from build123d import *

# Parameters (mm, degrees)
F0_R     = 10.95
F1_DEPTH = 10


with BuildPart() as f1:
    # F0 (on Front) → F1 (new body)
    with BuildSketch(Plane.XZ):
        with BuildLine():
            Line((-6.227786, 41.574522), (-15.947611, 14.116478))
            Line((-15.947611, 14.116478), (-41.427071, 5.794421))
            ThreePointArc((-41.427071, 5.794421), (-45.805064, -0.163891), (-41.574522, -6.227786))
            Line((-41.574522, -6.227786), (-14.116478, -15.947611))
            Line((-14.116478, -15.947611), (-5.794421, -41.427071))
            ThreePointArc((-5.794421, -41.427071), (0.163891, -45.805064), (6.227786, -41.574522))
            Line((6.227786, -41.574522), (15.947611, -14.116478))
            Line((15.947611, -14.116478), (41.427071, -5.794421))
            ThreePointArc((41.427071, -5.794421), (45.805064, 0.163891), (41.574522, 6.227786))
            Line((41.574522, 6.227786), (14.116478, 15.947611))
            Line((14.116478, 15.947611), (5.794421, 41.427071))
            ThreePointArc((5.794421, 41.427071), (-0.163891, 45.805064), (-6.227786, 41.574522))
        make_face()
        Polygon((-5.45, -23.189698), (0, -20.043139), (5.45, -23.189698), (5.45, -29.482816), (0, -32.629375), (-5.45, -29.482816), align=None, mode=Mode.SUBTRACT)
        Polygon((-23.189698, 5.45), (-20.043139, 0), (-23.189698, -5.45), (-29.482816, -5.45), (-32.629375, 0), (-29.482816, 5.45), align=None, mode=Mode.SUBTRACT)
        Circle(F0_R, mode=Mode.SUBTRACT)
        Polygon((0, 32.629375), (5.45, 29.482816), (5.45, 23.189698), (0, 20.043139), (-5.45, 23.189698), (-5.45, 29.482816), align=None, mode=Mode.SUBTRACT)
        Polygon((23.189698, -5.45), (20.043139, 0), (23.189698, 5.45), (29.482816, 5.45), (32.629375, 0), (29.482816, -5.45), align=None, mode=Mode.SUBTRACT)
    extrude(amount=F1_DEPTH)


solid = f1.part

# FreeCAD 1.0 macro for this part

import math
import FreeCAD as App
import Part
import Sketcher

V = App.Vector
Q = App.Units.Quantity


def add_polygon(sketch, points):
    """Adds a closed chain of lines whose ends are joined by coincident constraints."""
    first, n = sketch.GeometryCount, len(points)
    for a, b in zip(points, points[1:] + points[:1]):
        sketch.addGeometry(Part.LineSegment(App.Vector(*a, 0), App.Vector(*b, 0)), False)
    for i in range(n):
        sketch.addConstraint(Sketcher.Constraint("Coincident", first + i, 2, first + (i + 1) % n, 1))

doc = App.newDocument("Part")
body = doc.addObject("PartDesign::Body", "Body")

sketch1 = body.newObject("Sketcher::SketchObject", "Sketch")
sketch1.AttachmentSupport = (doc.getObject("XZ_Plane"), [""])
sketch1.MapMode = "FlatFace"
sketch1.addGeometry(Part.LineSegment(V(-6.227786, 41.574522, 0), V(-15.947611, 14.116478, 0)), False)
sketch1.addGeometry(Part.LineSegment(V(-15.947611, 14.116478, 0), V(-41.427071, 5.794421, 0)), False)
sketch1.addGeometry(Part.ArcOfCircle(Part.Circle(V(-39.455542, -0.241767, 0), V(0, 0, 1), 6.35), math.radians(108.087982), math.radians(250.506636)), False)
sketch1.addGeometry(Part.LineSegment(V(-41.574522, -6.227786, 0), V(-14.116478, -15.947611, 0)), False)
sketch1.addGeometry(Part.LineSegment(V(-14.116478, -15.947611, 0), V(-5.794421, -41.427071, 0)), False)
sketch1.addGeometry(Part.ArcOfCircle(Part.Circle(V(0.241767, -39.455542, 0), V(0, 0, 1), 6.35), math.radians(-161.912018), math.radians(-19.493364)), False)
sketch1.addGeometry(Part.LineSegment(V(6.227786, -41.574522, 0), V(15.947611, -14.116478, 0)), False)
sketch1.addGeometry(Part.LineSegment(V(15.947611, -14.116478, 0), V(41.427071, -5.794421, 0)), False)
sketch1.addGeometry(Part.ArcOfCircle(Part.Circle(V(39.455542, 0.241767, 0), V(0, 0, 1), 6.35), math.radians(-71.912018), math.radians(70.506636)), False)
sketch1.addGeometry(Part.LineSegment(V(41.574522, 6.227786, 0), V(14.116478, 15.947611, 0)), False)
sketch1.addGeometry(Part.LineSegment(V(14.116478, 15.947611, 0), V(5.794421, 41.427071, 0)), False)
sketch1.addGeometry(Part.ArcOfCircle(Part.Circle(V(-0.241767, 39.455542, 0), V(0, 0, 1), 6.35), math.radians(18.087982), math.radians(160.506636)), False)
add_polygon(sketch1, [(-5.45, -29.482816), (-5.45, -23.189698), (0, -20.043139), (5.45, -23.189698), (5.45, -29.482816), (0, -32.629375)])
add_polygon(sketch1, [(-29.482816, 5.45), (-23.189698, 5.45), (-20.043139, 0), (-23.189698, -5.45), (-29.482816, -5.45), (-32.629375, 0)])
sketch1.addGeometry(Part.Circle(V(0, 0, 0), V(0, 0, 1), 10.95), False)
add_polygon(sketch1, [(29.482816, -5.45), (23.189698, -5.45), (20.043139, 0), (23.189698, 5.45), (29.482816, 5.45), (32.629375, 0)])
add_polygon(sketch1, [(-5.45, 29.482816), (0, 32.629375), (5.45, 29.482816), (5.45, 23.189698), (0, 20.043139), (-5.45, 23.189698)])
sketch1.addConstraint([
    Sketcher.Constraint("Coincident", 0, 2, 1, 1),
    Sketcher.Constraint("Tangent", 1, 2, 2, 1),
    Sketcher.Constraint("Tangent", 2, 2, 3, 1),
    Sketcher.Constraint("Coincident", 3, 2, 4, 1),
    Sketcher.Constraint("Tangent", 4, 2, 5, 1),
    Sketcher.Constraint("Tangent", 5, 2, 6, 1),
    Sketcher.Constraint("Coincident", 6, 2, 7, 1),
    Sketcher.Constraint("Tangent", 7, 2, 8, 1),
    Sketcher.Constraint("Tangent", 8, 2, 9, 1),
    Sketcher.Constraint("Coincident", 9, 2, 10, 1),
    Sketcher.Constraint("Tangent", 10, 2, 11, 1),
    Sketcher.Constraint("Tangent", 11, 2, 0, 1),
    Sketcher.Constraint("Vertical", 12),
    Sketcher.Constraint("Vertical", 15),
    Sketcher.Constraint("Horizontal", 18),
    Sketcher.Constraint("Horizontal", 21),
    Sketcher.Constraint("Horizontal", 25),
    Sketcher.Constraint("Horizontal", 28),
    Sketcher.Constraint("Vertical", 33),
    Sketcher.Constraint("Vertical", 36),
    Sketcher.Constraint("Coincident", 24, 3, -1, 1),
    Sketcher.Constraint("Equal", 2, 5),
    Sketcher.Constraint("Equal", 5, 8),
    Sketcher.Constraint("Equal", 8, 11),
    Sketcher.Constraint("Symmetric", 2, 3, 8, 3, -1, 1),
    Sketcher.Constraint("Symmetric", 5, 3, 11, 3, -1, 1),
    Sketcher.Constraint("Symmetric", 0, 2, 6, 2, -1, 1),
    Sketcher.Constraint("Symmetric", 3, 2, 9, 2, -1, 1),
    Sketcher.Constraint("Symmetric", 18, 2, 25, 2, -1, 1),
    Sketcher.Constraint("Symmetric", 19, 2, 26, 2, -1, 1),
    Sketcher.Constraint("Symmetric", 20, 2, 27, 2, -1, 1),
    Sketcher.Constraint("Symmetric", 22, 2, 29, 2, -1, 1),
    Sketcher.Constraint("Symmetric", 16, 2, 31, 2, -1, 1),
    Sketcher.Constraint("Symmetric", 17, 2, 32, 2, -1, 1),
    Sketcher.Constraint("Symmetric", 13, 2, 34, 2, -1, 1),
    Sketcher.Constraint("Symmetric", 14, 2, 35, 2, -1, 1),
    Sketcher.Constraint("Symmetric", 12, 2, 14, 2, -2),
    Sketcher.Constraint("Symmetric", 20, 2, 25, 2, -2),
    Sketcher.Constraint("PointOnObject", 13, 2, -2),
    Sketcher.Constraint("PointOnObject", 16, 2, -2),
    Sketcher.Constraint("PointOnObject", 19, 2, -1),
    Sketcher.Constraint("PointOnObject", 22, 2, -1),
    Sketcher.Constraint("Perpendicular", 0, 3),
    Sketcher.Constraint("Perpendicular", 1, 4),
    Sketcher.Constraint("Parallel", 13, 16),
    Sketcher.Constraint("Parallel", 14, 17),
    Sketcher.Constraint("Perpendicular", 16, 19),
    Sketcher.Constraint("Parallel", 19, 22),
    Sketcher.Constraint("Parallel", 20, 23),
    Sketcher.Constraint("Parallel", 26, 29),
    Sketcher.Constraint("Parallel", 27, 30),
    Sketcher.Constraint("Perpendicular", 29, 31),
    Sketcher.Constraint("Parallel", 31, 34),
    Sketcher.Constraint("Equal", 28, 12),
    Sketcher.Constraint("Equal", 0, 3),
    Sketcher.Constraint("Equal", 1, 4),
    Sketcher.Constraint("Equal", 17, 19),
    Sketcher.Constraint("Diameter", 24, Q("21.9 mm")),
    Sketcher.Constraint("Angle", 13, Q("30 deg")),
    Sketcher.Constraint("Radius", 2, Q("6.35 mm")),
    Sketcher.Constraint("DistanceX", 12, 2, 14, 2, Q("10.9 mm")),
    Sketcher.Constraint("DistanceY", 12, 2, -1, 1, Q("23.189698 mm")),
    Sketcher.Constraint("DistanceX", 18, 2, -1, 1, Q("23.189698 mm")),
    Sketcher.Constraint("DistanceX", 2, 2, 4, 2, Q("35.780101 mm")),
    Sketcher.Constraint("DistanceX", 18, 1, 18, 2, Q("6.293118 mm")),
    Sketcher.Constraint("DistanceX", 2, 3, -1, 1, Q("39.455542 mm")),
    Sketcher.Constraint("DistanceX", 0, 2, -1, 1, Q("15.947611 mm")),
    Sketcher.Constraint("DistanceY", -1, 1, 0, 2, Q("14.116478 mm")),
])
pad1 = body.newObject("PartDesign::Pad", "Pad")
pad1.Profile = sketch1
pad1.Length = 10

doc.recompute()
